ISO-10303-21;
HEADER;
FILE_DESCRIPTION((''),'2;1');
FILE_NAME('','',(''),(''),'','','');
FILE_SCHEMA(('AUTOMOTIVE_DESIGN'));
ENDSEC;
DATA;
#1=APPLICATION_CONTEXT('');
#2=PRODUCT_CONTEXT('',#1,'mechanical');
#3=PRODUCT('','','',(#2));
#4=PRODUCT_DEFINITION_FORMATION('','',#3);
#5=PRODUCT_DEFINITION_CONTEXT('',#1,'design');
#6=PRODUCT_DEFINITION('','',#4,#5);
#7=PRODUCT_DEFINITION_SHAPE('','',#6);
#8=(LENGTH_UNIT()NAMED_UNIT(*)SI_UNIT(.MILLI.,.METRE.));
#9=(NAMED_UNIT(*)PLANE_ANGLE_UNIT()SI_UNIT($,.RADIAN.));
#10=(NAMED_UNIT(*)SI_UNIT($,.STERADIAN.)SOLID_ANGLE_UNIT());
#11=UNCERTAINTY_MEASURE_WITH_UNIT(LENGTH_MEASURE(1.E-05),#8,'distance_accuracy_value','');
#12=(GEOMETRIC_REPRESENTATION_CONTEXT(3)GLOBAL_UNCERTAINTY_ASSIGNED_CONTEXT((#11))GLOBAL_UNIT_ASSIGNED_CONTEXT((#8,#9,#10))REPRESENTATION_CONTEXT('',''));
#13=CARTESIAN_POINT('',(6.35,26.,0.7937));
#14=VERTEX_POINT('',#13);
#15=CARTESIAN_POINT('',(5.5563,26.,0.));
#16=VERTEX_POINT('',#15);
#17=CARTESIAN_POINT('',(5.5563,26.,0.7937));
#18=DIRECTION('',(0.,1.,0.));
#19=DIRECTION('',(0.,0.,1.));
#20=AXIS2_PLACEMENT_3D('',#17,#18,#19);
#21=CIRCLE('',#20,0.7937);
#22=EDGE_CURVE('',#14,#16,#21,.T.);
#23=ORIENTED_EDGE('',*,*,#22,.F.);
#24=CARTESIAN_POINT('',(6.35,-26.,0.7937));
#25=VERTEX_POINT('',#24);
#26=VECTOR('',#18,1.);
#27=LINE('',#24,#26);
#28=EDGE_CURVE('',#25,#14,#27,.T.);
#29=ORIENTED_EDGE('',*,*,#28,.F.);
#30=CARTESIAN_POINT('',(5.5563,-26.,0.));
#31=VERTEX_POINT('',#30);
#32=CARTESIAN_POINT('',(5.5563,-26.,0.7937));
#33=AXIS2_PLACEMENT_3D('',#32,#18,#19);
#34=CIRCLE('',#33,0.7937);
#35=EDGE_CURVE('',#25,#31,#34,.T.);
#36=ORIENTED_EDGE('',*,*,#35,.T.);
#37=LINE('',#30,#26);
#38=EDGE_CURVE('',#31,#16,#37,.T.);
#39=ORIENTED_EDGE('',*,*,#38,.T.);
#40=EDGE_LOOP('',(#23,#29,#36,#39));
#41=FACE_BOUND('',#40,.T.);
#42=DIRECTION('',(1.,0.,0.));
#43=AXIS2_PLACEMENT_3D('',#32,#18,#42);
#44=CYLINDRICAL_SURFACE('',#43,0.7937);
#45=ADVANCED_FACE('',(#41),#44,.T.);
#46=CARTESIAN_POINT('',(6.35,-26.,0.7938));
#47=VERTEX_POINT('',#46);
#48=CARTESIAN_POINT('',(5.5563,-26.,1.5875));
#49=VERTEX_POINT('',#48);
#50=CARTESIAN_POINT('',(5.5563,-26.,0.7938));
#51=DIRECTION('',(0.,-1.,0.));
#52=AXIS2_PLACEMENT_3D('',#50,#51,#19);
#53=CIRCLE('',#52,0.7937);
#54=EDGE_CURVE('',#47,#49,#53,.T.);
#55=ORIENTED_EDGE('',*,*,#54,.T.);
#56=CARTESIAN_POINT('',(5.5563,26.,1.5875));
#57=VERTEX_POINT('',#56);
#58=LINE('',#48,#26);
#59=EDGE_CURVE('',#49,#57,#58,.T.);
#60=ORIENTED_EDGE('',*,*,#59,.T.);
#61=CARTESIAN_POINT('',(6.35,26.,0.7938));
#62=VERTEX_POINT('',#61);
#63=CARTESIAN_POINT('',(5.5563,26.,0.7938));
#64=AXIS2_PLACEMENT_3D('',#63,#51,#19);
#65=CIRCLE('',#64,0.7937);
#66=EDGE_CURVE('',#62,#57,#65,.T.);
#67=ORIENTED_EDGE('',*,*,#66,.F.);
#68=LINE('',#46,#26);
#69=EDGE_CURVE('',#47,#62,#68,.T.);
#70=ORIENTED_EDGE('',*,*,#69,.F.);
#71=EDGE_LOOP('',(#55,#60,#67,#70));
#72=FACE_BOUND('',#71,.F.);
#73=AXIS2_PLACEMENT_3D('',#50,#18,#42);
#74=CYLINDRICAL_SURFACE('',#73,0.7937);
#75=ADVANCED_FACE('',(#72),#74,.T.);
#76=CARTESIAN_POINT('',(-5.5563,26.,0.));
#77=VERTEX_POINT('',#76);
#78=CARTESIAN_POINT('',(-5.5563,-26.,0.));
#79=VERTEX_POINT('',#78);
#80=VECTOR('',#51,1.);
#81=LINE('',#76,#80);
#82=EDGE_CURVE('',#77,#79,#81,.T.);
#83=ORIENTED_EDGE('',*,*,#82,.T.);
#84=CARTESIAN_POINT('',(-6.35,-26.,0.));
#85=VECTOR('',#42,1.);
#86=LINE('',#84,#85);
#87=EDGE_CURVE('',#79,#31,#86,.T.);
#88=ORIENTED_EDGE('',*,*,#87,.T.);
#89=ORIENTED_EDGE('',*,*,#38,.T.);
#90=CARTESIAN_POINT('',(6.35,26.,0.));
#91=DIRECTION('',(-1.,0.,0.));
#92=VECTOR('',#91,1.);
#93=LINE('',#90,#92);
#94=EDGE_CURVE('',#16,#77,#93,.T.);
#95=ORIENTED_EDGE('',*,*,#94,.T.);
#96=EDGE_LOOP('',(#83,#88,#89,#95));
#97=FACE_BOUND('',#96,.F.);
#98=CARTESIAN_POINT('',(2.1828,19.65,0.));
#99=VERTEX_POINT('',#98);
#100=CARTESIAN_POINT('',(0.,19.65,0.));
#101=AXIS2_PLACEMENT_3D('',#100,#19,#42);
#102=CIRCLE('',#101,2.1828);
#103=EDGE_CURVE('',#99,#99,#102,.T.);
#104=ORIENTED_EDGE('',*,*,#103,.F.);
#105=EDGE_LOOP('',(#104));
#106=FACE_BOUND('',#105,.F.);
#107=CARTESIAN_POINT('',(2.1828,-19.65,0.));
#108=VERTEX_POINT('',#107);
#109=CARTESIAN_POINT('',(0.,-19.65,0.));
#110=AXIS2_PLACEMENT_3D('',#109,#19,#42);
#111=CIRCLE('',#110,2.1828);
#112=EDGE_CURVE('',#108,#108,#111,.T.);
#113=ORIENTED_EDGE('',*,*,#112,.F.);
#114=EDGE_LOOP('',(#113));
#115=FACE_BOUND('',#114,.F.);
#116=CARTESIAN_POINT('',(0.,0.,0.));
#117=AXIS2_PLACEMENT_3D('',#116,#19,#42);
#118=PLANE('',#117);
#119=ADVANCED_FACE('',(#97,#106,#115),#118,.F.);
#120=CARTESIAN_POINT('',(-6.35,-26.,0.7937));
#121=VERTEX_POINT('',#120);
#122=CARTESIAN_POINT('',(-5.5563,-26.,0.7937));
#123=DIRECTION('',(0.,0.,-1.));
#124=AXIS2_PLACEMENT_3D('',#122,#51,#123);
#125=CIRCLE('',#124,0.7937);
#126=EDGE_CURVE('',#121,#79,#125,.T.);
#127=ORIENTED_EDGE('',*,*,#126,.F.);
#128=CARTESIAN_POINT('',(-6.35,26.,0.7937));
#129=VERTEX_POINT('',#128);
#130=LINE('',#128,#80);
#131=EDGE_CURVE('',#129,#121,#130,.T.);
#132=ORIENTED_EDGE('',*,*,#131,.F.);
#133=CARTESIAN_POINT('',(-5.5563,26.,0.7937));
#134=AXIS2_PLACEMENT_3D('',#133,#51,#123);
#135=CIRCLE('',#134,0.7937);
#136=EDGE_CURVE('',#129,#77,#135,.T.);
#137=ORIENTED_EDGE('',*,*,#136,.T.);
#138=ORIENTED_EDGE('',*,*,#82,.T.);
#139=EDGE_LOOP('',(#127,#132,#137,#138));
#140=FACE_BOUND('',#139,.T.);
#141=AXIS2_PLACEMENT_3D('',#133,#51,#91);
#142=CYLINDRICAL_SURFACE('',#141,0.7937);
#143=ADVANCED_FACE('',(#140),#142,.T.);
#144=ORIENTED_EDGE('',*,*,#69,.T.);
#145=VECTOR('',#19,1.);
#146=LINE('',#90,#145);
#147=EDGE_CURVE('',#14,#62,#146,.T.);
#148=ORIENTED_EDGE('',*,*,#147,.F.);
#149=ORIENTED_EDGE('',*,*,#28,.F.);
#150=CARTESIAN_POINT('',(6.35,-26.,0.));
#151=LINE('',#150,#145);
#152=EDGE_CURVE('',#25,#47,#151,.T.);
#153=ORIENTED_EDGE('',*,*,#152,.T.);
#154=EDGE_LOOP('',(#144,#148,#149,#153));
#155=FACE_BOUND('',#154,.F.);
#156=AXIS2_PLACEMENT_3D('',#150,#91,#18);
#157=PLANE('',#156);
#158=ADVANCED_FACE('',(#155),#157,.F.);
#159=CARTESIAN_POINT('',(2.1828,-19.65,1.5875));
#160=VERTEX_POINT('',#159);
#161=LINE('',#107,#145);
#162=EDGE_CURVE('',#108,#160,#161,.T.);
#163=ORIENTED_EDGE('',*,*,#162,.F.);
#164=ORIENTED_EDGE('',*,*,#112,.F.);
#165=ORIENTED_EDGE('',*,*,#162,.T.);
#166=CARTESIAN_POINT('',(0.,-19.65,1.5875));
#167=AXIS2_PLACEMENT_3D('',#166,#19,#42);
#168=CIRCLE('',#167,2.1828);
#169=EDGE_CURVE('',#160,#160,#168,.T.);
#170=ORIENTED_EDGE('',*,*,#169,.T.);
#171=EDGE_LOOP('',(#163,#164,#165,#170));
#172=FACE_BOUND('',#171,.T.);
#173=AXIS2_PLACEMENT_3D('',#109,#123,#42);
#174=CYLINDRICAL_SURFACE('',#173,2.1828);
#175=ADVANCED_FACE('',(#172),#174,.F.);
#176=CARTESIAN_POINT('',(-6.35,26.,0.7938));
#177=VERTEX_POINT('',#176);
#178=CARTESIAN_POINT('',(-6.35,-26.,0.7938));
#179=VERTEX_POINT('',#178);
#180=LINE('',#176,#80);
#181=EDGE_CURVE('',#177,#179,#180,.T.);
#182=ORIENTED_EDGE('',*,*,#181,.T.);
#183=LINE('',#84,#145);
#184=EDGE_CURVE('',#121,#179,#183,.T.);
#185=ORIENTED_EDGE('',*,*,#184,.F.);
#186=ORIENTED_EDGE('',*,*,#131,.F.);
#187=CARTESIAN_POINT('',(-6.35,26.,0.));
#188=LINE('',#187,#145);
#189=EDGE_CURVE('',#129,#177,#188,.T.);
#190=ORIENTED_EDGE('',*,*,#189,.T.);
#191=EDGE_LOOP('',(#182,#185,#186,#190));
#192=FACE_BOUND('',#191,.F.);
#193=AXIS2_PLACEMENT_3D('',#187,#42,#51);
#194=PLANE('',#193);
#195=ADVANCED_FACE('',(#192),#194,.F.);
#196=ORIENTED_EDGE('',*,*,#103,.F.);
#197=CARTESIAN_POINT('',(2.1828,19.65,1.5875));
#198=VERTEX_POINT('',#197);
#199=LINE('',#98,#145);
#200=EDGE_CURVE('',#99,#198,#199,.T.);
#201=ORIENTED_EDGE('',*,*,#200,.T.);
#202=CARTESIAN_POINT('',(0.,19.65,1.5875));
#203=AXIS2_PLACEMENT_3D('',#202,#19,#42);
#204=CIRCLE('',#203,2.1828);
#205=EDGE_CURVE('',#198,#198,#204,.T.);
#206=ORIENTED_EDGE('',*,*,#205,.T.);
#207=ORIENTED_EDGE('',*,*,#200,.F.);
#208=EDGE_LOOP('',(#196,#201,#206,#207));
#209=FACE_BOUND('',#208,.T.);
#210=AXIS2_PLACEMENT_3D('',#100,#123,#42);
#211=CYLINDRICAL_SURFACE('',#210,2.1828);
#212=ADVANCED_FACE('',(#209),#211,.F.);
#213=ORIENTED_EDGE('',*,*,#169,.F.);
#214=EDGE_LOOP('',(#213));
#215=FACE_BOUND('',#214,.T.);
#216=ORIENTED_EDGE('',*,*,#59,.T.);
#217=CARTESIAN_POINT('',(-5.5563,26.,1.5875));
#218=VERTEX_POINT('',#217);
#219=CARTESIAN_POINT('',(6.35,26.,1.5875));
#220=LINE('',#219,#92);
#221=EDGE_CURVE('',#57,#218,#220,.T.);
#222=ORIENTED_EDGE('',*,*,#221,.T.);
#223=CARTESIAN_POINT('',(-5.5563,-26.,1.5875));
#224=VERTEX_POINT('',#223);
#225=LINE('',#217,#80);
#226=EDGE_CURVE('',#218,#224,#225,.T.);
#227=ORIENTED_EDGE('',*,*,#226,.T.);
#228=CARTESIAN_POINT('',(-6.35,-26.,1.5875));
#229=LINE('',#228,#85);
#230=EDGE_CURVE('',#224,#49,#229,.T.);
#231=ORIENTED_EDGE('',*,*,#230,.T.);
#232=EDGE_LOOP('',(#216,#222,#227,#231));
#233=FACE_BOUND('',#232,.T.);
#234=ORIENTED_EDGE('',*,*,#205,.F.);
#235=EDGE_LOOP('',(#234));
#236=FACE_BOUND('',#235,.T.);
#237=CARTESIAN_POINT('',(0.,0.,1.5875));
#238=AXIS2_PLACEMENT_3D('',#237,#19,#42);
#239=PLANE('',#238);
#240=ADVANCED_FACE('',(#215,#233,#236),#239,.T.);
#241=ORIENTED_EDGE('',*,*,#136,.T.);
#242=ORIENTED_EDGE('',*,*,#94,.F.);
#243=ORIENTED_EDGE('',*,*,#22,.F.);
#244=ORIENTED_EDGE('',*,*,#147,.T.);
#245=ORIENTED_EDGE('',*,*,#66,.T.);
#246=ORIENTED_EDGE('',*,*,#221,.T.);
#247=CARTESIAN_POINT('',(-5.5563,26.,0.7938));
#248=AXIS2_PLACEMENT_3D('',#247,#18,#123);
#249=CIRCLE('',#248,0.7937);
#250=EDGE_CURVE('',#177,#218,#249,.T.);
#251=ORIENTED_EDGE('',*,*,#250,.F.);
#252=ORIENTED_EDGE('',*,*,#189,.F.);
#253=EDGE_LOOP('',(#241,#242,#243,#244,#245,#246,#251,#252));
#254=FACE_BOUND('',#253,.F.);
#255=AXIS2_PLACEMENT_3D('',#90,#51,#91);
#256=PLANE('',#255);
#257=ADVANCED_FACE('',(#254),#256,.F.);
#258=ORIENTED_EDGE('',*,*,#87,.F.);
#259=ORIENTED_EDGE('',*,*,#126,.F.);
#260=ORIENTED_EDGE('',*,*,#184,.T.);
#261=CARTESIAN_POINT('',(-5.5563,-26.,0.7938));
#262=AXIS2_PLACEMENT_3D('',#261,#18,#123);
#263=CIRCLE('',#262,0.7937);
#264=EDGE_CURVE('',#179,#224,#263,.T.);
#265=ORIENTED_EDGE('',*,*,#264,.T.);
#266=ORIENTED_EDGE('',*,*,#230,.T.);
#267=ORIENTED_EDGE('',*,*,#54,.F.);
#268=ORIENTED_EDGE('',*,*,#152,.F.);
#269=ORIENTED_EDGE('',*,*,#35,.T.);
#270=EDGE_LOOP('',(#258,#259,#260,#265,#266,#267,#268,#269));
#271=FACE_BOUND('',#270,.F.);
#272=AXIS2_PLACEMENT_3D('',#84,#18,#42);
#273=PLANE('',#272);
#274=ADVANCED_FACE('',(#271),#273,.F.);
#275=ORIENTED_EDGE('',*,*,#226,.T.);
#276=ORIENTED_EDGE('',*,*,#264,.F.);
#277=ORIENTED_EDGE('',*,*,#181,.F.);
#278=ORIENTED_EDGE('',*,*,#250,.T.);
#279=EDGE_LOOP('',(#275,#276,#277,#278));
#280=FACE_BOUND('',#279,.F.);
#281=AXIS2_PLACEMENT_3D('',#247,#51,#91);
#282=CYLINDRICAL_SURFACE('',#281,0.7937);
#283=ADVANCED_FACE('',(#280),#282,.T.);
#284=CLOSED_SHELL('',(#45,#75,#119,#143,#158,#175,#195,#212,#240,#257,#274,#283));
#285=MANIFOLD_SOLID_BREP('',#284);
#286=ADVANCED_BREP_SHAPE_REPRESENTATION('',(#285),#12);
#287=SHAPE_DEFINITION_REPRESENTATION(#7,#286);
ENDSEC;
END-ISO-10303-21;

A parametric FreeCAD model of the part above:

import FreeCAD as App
import Part
import Sketcher

V = App.Vector
Q = App.Units.Quantity


def edges_at(feature, points):
    """Names of the edges that pass closest to the given points."""
    edges = feature.Shape.Edges
    near = lambda p: min(range(len(edges)), key=lambda i: edges[i].distToShape(Part.Vertex(*p))[0])
    return sorted({f"Edge{near(p) + 1}" for p in points})


def add_polygon(sketch, points):
    """Adds a closed chain of lines whose ends are joined by coincident constraints."""
    first, n = sketch.GeometryCount, len(points)
    for a, b in zip(points, points[1:] + points[:1]):
        sketch.addGeometry(Part.LineSegment(App.Vector(*a, 0), App.Vector(*b, 0)), False)
    for i in range(n):
        sketch.addConstraint(Sketcher.Constraint("Coincident", first + i, 2, first + (i + 1) % n, 1))

doc = App.newDocument("Part")
body = doc.addObject("PartDesign::Body", "Body")

# Sketch on XY plane
sketch1 = doc.addObject("Sketcher::SketchObject", "Sketch")
body.addObject(sketch1)
sketch1.AttachmentSupport = (doc.XY_Plane, [""])
sketch1.MapMode = "FlatFace"
add_polygon(sketch1, [(-6.35, 26), (-6.35, -26), (6.35, -26), (6.35, 26)])  # lines 0-3
sketch1.addGeometry(Part.Circle(V(0, -19.65, 0), V(0, 0, 1), 2.1828), False)  # 4
sketch1.addGeometry(Part.Circle(V(0, 19.65, 0), V(0, 0, 1), 2.1828), False)  # 5
sketch1.addConstraint([
    Sketcher.Constraint("Vertical", 0),
    Sketcher.Constraint("Horizontal", 1),
    Sketcher.Constraint("Vertical", 2),
    Sketcher.Constraint("Horizontal", 3),
    Sketcher.Constraint("Equal", 4, 5),
    Sketcher.Constraint("Symmetric", 4, 3, 5, 3, -1, 1),
    Sketcher.Constraint("Symmetric", 0, 2, 2, 2, -1, 1),
    Sketcher.Constraint("PointOnObject", 4, 3, -2),
    Sketcher.Constraint("Diameter", 4, Q("0.171874 in")),
    Sketcher.Constraint("DistanceX", 1, 1, 1, 2, Q("0.5 in")),
    Sketcher.Constraint("DistanceY", 0, 2, 4, 3, Q("0.25 in")),
    Sketcher.Constraint("DistanceY", 4, 3, -1, 1, Q("19.65 mm")),
])
pad1 = doc.addObject("PartDesign::Pad", "Pad")
body.addObject(pad1)
pad1.Profile = sketch1
pad1.Length = Q("0.0625 in")
doc.recompute()

fillet = doc.addObject("PartDesign::Fillet", "Fillet")
body.addObject(fillet)
fillet.Base = (pad1, edges_at(pad1, [
    (-6.35, 0, 0),
    (-6.35, 0, 1.587),
    (6.35, 0, 0),
    (6.35, 0, 1.587),
]))
fillet.Radius = Q("0.031248 in")

doc.recompute()
